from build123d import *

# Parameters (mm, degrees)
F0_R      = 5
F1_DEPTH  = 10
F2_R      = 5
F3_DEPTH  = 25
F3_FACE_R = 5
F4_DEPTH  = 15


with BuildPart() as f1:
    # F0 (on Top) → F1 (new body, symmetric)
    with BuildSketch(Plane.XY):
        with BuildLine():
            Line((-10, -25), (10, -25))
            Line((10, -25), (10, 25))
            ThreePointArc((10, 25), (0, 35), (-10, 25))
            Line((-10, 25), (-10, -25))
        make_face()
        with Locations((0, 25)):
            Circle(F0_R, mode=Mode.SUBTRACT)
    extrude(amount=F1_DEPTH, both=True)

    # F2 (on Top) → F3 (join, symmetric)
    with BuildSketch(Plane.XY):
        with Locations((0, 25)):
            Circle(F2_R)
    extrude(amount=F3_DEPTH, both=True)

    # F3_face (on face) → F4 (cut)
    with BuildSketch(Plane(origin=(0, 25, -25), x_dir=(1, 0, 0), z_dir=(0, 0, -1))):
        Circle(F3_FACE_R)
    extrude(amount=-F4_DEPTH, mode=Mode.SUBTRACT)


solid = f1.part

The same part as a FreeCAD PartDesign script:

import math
import FreeCAD as App
import Part
import Sketcher

V = App.Vector
Q = App.Units.Quantity

doc = App.newDocument("Part")
body = doc.addObject("PartDesign::Body", "Body")

# Sketch on XY plane
sketch1 = body.newObject("Sketcher::SketchObject", "Sketch")
sketch1.AttachmentSupport = (doc.getObject("XY_Plane"), [""])
sketch1.MapMode = "FlatFace"
sketch1.addGeometry(Part.LineSegment(V(-10, -25, 0), V(10, -25, 0)), False)
sketch1.addGeometry(Part.LineSegment(V(10, -25, 0), V(10, 25, 0)), False)
sketch1.addGeometry(Part.ArcOfCircle(Part.Circle(V(0, 25, 0), V(0, 0, 1), 10), math.radians(0), math.radians(180)), False)
sketch1.addGeometry(Part.LineSegment(V(-10, 25, 0), V(-10, -25, 0)), False)
sketch1.addGeometry(Part.Circle(V(0, 25, 0), V(0, 0, 1), 5), False)
sketch1.addConstraint(Sketcher.Constraint("Coincident", 0, 2, 1, 1))
sketch1.addConstraint(Sketcher.Constraint("Tangent", 1, 2, 2, 1))
sketch1.addConstraint(Sketcher.Constraint("Tangent", 2, 2, 3, 1))
sketch1.addConstraint(Sketcher.Constraint("Coincident", 3, 2, 0, 1))
sketch1.addConstraint(Sketcher.Constraint("Horizontal", 0))
sketch1.addConstraint(Sketcher.Constraint("Vertical", 1))
sketch1.addConstraint(Sketcher.Constraint("Vertical", 3))
sketch1.addConstraint(Sketcher.Constraint("Coincident", 4, 3, 2, 3))
sketch1.addConstraint(Sketcher.Constraint("Symmetric", 0, 2, 2, 2, -1, 1))
sketch1.addConstraint(Sketcher.Constraint("Diameter", 4, Q("10 mm")))
sketch1.addConstraint(Sketcher.Constraint("Radius", 2, Q("10 mm")))
sketch1.addConstraint(Sketcher.Constraint("DistanceY", 1, 1, 1, 2, Q("50 mm")))
pad1 = body.newObject("PartDesign::Pad", "Pad")
pad1.Profile = sketch1
pad1.Length = 20
pad1.Midplane = True

# Sketch on XY plane
sketch2 = body.newObject("Sketcher::SketchObject", "Sketch001")
sketch2.AttachmentSupport = (doc.getObject("XY_Plane"), [""])
sketch2.MapMode = "FlatFace"
sketch2.addGeometry(Part.Circle(V(0, 25, 0), V(0, 0, 1), 5), False)
sketch2.addConstraint(Sketcher.Constraint("PointOnObject", 0, 3, -2))
sketch2.addConstraint(Sketcher.Constraint("Diameter", 0, Q("10 mm")))
sketch2.addConstraint(Sketcher.Constraint("DistanceY", -1, 1, 0, 3, Q("25 mm")))
pad2 = body.newObject("PartDesign::Pad", "Pad001")
pad2.Profile = sketch2
pad2.Length = 50
pad2.Midplane = True

# Sketch on XY plane
sketch3 = body.newObject("Sketcher::SketchObject", "Sketch002")
sketch3.AttachmentSupport = (doc.getObject("XY_Plane"), [""])
sketch3.MapMode = "FlatFace"
sketch3.AttachmentOffset = App.Placement(V(0, 0, -25), App.Rotation())
sketch3.addGeometry(Part.Circle(V(0, 25, 0), V(0, 0, 1), 5), False)
sketch3.addConstraint(Sketcher.Constraint("PointOnObject", 0, 3, -2))
sketch3.addConstraint(Sketcher.Constraint("Diameter", 0, Q("10 mm")))
sketch3.addConstraint(Sketcher.Constraint("DistanceY", -1, 1, 0, 3, Q("25 mm")))
pocket1 = body.newObject("PartDesign::Pocket", "Pocket")
pocket1.Profile = sketch3
pocket1.Length = 15
pocket1.Reversed = True

doc.recompute()
